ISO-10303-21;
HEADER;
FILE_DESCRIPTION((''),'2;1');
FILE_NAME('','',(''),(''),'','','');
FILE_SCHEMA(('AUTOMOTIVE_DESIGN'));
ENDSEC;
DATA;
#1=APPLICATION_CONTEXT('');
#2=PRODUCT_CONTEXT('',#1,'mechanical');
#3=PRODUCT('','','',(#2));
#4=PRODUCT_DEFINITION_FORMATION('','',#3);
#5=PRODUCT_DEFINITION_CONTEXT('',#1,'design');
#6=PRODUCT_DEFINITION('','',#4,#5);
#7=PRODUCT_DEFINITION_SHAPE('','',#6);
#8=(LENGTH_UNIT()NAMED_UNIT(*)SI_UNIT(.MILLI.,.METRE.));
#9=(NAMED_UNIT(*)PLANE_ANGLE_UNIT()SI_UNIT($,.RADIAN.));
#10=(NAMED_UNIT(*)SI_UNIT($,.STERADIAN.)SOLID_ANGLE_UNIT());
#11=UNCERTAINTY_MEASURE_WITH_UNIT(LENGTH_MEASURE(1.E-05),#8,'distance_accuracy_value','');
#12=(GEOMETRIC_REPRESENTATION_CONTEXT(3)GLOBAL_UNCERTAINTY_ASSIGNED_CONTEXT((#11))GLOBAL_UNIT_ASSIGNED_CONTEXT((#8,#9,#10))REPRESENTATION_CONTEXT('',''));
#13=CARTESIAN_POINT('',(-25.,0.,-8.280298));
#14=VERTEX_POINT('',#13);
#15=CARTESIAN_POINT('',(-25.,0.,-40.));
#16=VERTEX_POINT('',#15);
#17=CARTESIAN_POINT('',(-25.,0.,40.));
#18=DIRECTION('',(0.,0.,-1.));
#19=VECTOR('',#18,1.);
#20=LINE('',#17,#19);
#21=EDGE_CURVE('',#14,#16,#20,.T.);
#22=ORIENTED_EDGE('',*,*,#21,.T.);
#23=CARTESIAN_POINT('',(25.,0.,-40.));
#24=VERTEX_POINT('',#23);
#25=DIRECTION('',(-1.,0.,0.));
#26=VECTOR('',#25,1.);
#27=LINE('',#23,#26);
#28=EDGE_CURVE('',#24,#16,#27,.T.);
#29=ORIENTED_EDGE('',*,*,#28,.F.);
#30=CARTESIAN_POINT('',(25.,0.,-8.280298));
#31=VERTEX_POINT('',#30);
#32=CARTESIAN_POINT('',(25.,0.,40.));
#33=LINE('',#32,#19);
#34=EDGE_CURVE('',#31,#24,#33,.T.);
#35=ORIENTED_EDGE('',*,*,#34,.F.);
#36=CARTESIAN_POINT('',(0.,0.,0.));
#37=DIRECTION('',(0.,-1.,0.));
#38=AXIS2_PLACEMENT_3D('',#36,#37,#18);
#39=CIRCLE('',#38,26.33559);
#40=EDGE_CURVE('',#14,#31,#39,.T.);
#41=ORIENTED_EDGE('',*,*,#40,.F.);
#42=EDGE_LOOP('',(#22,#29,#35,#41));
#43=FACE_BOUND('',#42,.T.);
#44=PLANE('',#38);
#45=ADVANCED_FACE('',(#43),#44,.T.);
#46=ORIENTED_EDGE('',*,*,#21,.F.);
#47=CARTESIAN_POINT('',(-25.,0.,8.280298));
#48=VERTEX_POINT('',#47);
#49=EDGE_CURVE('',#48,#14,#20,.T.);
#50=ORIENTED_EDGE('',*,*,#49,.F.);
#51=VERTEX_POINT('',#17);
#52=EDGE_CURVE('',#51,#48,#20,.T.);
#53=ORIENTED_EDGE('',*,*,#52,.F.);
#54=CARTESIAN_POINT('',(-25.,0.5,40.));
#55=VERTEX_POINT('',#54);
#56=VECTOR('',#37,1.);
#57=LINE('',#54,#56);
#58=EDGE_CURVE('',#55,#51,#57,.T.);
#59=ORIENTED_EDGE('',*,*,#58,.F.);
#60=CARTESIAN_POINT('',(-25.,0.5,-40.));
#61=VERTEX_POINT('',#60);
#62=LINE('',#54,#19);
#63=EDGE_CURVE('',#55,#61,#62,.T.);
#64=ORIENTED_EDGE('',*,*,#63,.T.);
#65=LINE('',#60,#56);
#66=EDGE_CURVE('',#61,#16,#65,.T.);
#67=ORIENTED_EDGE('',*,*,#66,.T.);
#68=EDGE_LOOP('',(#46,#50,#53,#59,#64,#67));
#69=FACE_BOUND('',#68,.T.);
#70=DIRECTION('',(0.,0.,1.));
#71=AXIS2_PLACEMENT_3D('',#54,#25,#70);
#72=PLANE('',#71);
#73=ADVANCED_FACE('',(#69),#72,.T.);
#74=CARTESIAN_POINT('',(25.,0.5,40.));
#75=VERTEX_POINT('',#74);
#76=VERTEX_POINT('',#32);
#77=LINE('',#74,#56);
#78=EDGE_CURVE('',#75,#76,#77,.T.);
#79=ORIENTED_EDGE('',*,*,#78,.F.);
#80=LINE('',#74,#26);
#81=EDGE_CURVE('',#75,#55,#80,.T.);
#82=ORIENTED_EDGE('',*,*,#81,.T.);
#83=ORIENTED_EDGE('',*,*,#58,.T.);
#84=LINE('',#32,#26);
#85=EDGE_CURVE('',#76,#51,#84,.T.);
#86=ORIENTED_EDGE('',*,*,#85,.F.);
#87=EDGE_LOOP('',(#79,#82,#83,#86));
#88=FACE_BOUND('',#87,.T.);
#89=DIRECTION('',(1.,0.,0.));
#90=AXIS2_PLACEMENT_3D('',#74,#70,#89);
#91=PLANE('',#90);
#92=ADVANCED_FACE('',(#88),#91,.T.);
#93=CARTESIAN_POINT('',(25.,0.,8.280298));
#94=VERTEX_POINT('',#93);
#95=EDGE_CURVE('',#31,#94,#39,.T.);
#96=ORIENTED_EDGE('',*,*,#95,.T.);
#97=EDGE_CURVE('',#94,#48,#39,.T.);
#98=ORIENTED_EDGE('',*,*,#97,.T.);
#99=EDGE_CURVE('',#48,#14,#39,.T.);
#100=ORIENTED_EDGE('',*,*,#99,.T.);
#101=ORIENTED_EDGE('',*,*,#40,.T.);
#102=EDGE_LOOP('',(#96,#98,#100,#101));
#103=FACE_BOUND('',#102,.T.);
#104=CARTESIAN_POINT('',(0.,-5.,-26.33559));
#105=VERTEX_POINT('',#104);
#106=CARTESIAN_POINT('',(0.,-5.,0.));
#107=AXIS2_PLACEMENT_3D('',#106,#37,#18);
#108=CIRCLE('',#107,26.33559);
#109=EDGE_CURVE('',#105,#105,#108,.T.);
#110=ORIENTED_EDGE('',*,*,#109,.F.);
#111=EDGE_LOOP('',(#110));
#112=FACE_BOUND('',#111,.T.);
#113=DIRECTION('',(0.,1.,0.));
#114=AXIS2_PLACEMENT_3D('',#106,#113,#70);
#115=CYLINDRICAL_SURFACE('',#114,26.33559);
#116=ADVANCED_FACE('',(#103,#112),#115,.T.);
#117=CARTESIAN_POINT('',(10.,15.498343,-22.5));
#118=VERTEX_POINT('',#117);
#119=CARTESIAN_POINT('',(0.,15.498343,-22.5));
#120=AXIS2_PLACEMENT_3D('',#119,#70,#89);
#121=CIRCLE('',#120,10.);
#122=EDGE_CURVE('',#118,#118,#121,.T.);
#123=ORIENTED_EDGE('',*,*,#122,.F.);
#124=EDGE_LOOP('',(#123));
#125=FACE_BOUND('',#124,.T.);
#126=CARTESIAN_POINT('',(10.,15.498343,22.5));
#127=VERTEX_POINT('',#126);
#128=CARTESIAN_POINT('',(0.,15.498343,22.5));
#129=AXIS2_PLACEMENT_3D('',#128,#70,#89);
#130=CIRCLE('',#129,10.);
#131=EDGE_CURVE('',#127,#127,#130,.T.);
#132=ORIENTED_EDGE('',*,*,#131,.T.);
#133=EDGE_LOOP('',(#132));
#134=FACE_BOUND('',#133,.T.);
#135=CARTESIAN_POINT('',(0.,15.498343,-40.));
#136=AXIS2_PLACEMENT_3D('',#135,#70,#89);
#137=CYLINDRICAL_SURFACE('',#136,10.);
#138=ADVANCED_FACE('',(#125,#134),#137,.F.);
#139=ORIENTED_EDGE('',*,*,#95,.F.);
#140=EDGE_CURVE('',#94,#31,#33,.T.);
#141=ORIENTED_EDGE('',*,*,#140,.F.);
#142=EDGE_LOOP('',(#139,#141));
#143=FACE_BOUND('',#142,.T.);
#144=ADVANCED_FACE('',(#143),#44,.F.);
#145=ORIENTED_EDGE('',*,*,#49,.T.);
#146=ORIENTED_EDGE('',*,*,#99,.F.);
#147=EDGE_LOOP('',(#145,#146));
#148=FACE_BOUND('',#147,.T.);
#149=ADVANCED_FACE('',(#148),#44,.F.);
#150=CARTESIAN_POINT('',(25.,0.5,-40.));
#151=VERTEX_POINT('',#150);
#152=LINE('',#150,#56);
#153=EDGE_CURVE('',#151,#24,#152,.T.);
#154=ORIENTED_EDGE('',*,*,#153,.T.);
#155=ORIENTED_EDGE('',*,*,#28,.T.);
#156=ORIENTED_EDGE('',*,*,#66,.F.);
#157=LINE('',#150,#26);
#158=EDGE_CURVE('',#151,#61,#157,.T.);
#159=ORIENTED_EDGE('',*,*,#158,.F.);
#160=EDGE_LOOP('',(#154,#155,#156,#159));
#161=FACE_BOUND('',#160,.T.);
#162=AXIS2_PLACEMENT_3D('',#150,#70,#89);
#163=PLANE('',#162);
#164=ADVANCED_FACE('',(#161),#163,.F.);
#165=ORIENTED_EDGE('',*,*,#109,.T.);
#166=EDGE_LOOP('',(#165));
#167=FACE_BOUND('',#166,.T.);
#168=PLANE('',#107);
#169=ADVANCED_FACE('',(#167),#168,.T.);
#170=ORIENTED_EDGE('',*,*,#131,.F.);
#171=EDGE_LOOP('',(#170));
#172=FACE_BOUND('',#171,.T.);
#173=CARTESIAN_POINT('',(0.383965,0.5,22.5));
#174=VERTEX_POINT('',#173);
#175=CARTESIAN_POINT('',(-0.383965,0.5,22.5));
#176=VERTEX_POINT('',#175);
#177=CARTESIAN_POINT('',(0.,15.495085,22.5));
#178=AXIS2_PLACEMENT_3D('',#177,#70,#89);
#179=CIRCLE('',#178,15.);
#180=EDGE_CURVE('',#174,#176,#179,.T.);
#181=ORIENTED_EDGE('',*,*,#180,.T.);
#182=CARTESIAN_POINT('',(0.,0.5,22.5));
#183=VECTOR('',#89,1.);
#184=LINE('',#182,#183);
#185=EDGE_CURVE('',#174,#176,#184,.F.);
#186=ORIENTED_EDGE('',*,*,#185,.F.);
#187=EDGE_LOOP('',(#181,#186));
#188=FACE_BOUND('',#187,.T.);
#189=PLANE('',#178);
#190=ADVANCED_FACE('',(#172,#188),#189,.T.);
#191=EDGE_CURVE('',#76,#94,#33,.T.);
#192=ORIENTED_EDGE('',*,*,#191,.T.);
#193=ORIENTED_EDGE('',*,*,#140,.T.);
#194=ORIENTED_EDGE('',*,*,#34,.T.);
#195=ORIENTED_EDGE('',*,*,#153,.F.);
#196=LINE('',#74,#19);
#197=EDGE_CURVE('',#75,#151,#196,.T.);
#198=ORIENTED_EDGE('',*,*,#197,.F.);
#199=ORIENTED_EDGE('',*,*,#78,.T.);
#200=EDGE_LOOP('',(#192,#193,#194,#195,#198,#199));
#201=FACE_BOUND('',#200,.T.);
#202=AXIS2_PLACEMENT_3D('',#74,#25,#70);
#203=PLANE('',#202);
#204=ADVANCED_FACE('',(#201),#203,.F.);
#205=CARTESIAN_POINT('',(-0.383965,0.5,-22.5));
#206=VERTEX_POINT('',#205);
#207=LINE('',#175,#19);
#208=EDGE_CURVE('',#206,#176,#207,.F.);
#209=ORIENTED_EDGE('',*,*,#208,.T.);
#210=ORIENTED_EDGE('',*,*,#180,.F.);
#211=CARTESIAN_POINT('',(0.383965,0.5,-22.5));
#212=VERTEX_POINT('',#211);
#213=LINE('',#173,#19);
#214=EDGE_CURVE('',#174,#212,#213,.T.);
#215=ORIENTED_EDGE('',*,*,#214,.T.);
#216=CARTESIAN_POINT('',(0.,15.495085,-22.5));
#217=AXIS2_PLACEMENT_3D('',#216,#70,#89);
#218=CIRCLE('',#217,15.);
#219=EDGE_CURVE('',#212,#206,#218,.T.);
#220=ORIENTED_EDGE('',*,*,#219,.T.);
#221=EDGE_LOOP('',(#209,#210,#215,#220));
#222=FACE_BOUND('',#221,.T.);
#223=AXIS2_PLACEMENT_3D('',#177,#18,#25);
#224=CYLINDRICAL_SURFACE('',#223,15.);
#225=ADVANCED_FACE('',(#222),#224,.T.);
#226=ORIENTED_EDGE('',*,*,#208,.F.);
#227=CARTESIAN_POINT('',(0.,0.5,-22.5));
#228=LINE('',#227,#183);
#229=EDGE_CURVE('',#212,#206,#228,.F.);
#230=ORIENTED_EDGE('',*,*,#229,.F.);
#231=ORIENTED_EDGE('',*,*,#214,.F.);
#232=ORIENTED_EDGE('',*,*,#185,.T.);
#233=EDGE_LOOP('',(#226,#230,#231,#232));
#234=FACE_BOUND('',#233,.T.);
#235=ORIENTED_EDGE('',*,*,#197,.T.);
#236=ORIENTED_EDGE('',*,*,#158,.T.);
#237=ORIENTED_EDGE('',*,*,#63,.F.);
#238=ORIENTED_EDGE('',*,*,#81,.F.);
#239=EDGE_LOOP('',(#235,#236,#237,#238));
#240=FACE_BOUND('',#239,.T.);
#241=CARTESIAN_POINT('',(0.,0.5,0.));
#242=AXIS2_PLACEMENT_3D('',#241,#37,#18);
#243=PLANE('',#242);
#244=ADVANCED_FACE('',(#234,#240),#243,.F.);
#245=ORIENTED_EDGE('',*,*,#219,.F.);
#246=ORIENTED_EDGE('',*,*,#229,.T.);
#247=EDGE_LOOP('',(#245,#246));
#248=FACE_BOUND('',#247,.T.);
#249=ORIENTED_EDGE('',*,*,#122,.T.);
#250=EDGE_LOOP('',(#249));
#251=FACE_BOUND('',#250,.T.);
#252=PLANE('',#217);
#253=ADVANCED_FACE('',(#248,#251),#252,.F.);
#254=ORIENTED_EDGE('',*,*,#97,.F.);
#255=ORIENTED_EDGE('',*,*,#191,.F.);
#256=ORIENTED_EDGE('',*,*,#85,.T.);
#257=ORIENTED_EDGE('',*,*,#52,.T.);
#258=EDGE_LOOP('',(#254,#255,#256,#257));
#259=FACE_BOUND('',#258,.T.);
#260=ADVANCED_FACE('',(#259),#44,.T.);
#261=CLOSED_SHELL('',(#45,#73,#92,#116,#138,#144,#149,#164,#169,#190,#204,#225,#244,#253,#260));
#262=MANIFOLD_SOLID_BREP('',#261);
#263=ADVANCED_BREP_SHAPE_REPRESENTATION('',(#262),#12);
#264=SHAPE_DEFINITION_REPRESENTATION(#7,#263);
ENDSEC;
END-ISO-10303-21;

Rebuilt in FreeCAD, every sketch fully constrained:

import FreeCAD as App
import Part
import Sketcher
from FreeCAD import Vector
Q = App.Units.Quantity


def add_polygon(sketch, points):
    """Adds a closed chain of lines whose ends are joined by coincident constraints."""
    first, n = sketch.GeometryCount, len(points)
    for a, b in zip(points, points[1:] + points[:1]):
        sketch.addGeometry(Part.LineSegment(App.Vector(*a, 0), App.Vector(*b, 0)), False)
    for i in range(n):
        sketch.addConstraint(Sketcher.Constraint("Coincident", first + i, 2, first + (i + 1) % n, 1))

doc = App.newDocument("Part")
body = doc.addObject("PartDesign::Body", "Body")

# Sketch on XZ plane
sketch1 = body.newObject("Sketcher::SketchObject", "Sketch")
sketch1.AttachmentSupport = (doc.getObject("XZ_Plane"), [""])
sketch1.MapMode = "FlatFace"
add_polygon(sketch1, [(-25, -40), (-25, 40), (25, 40), (25, -40)])  # lines 0-3
sketch1.addConstraint([
    Sketcher.Constraint("Vertical", 0),
    Sketcher.Constraint("Horizontal", 1),
    Sketcher.Constraint("Vertical", 2),
    Sketcher.Constraint("Horizontal", 3),
    Sketcher.Constraint("Symmetric", 0, 2, 2, 2, -1, 1),
    Sketcher.Constraint("DistanceX", 1, 1, 1, 2, Q("50 mm")),
    Sketcher.Constraint("DistanceY", 0, 1, 0, 2, Q("80 mm")),
])
pad1 = body.newObject("PartDesign::Pad", "Pad")
pad1.Profile = sketch1
pad1.Length = 0.5
pad1.Reversed = True

# Sketch on XZ plane
sketch2 = body.newObject("Sketcher::SketchObject", "Sketch001")
sketch2.AttachmentSupport = (doc.getObject("XZ_Plane"), [""])
sketch2.MapMode = "FlatFace"
sketch2.addGeometry(Part.Circle(Vector(0, 0, 0), Vector(0, 0, 1), 26.33559), False)
sketch2.addConstraint([
    Sketcher.Constraint("Coincident", 0, 3, -1, 1),
    Sketcher.Constraint("Diameter", 0, Q("52.671181 mm")),
])
pad2 = body.newObject("PartDesign::Pad", "Pad001")
pad2.Profile = sketch2
pad2.Length = 5

# Sketch on XY plane
sketch3 = body.newObject("Sketcher::SketchObject", "Sketch002")
sketch3.AttachmentSupport = (doc.getObject("XY_Plane"), [""])
sketch3.MapMode = "FlatFace"
sketch3.addGeometry(Part.Circle(Vector(0, 15.495085, 0), Vector(0, 0, 1), 15), False)
sketch3.addConstraint([
    Sketcher.Constraint("PointOnObject", 0, 3, -2),
    Sketcher.Constraint("Diameter", 0, Q("30 mm")),
    Sketcher.Constraint("DistanceY", -1, 1, 0, 3, Q("15.495085 mm")),
])
pad3 = body.newObject("PartDesign::Pad", "Pad002")
pad3.Profile = sketch3
pad3.Length = 45
pad3.Midplane = True

# Sketch on XY plane
sketch4 = body.newObject("Sketcher::SketchObject", "Sketch003")
sketch4.AttachmentSupport = (doc.getObject("XY_Plane"), [""])
sketch4.MapMode = "FlatFace"
sketch4.AttachmentOffset = App.Placement(Vector(0, 0, 22.5), App.Rotation())
sketch4.addGeometry(Part.Circle(Vector(0, 15.498343, 0), Vector(0, 0, 1), 10), False)
sketch4.addConstraint([
    Sketcher.Constraint("PointOnObject", 0, 3, -2),
    Sketcher.Constraint("Diameter", 0, Q("20 mm")),
    Sketcher.Constraint("DistanceY", -1, 1, 0, 3, Q("15.498343 mm")),
])
pocket1 = body.newObject("PartDesign::Pocket", "Pocket")
pocket1.Profile = sketch4
pocket1.Type = "ThroughAll"

doc.recompute()
